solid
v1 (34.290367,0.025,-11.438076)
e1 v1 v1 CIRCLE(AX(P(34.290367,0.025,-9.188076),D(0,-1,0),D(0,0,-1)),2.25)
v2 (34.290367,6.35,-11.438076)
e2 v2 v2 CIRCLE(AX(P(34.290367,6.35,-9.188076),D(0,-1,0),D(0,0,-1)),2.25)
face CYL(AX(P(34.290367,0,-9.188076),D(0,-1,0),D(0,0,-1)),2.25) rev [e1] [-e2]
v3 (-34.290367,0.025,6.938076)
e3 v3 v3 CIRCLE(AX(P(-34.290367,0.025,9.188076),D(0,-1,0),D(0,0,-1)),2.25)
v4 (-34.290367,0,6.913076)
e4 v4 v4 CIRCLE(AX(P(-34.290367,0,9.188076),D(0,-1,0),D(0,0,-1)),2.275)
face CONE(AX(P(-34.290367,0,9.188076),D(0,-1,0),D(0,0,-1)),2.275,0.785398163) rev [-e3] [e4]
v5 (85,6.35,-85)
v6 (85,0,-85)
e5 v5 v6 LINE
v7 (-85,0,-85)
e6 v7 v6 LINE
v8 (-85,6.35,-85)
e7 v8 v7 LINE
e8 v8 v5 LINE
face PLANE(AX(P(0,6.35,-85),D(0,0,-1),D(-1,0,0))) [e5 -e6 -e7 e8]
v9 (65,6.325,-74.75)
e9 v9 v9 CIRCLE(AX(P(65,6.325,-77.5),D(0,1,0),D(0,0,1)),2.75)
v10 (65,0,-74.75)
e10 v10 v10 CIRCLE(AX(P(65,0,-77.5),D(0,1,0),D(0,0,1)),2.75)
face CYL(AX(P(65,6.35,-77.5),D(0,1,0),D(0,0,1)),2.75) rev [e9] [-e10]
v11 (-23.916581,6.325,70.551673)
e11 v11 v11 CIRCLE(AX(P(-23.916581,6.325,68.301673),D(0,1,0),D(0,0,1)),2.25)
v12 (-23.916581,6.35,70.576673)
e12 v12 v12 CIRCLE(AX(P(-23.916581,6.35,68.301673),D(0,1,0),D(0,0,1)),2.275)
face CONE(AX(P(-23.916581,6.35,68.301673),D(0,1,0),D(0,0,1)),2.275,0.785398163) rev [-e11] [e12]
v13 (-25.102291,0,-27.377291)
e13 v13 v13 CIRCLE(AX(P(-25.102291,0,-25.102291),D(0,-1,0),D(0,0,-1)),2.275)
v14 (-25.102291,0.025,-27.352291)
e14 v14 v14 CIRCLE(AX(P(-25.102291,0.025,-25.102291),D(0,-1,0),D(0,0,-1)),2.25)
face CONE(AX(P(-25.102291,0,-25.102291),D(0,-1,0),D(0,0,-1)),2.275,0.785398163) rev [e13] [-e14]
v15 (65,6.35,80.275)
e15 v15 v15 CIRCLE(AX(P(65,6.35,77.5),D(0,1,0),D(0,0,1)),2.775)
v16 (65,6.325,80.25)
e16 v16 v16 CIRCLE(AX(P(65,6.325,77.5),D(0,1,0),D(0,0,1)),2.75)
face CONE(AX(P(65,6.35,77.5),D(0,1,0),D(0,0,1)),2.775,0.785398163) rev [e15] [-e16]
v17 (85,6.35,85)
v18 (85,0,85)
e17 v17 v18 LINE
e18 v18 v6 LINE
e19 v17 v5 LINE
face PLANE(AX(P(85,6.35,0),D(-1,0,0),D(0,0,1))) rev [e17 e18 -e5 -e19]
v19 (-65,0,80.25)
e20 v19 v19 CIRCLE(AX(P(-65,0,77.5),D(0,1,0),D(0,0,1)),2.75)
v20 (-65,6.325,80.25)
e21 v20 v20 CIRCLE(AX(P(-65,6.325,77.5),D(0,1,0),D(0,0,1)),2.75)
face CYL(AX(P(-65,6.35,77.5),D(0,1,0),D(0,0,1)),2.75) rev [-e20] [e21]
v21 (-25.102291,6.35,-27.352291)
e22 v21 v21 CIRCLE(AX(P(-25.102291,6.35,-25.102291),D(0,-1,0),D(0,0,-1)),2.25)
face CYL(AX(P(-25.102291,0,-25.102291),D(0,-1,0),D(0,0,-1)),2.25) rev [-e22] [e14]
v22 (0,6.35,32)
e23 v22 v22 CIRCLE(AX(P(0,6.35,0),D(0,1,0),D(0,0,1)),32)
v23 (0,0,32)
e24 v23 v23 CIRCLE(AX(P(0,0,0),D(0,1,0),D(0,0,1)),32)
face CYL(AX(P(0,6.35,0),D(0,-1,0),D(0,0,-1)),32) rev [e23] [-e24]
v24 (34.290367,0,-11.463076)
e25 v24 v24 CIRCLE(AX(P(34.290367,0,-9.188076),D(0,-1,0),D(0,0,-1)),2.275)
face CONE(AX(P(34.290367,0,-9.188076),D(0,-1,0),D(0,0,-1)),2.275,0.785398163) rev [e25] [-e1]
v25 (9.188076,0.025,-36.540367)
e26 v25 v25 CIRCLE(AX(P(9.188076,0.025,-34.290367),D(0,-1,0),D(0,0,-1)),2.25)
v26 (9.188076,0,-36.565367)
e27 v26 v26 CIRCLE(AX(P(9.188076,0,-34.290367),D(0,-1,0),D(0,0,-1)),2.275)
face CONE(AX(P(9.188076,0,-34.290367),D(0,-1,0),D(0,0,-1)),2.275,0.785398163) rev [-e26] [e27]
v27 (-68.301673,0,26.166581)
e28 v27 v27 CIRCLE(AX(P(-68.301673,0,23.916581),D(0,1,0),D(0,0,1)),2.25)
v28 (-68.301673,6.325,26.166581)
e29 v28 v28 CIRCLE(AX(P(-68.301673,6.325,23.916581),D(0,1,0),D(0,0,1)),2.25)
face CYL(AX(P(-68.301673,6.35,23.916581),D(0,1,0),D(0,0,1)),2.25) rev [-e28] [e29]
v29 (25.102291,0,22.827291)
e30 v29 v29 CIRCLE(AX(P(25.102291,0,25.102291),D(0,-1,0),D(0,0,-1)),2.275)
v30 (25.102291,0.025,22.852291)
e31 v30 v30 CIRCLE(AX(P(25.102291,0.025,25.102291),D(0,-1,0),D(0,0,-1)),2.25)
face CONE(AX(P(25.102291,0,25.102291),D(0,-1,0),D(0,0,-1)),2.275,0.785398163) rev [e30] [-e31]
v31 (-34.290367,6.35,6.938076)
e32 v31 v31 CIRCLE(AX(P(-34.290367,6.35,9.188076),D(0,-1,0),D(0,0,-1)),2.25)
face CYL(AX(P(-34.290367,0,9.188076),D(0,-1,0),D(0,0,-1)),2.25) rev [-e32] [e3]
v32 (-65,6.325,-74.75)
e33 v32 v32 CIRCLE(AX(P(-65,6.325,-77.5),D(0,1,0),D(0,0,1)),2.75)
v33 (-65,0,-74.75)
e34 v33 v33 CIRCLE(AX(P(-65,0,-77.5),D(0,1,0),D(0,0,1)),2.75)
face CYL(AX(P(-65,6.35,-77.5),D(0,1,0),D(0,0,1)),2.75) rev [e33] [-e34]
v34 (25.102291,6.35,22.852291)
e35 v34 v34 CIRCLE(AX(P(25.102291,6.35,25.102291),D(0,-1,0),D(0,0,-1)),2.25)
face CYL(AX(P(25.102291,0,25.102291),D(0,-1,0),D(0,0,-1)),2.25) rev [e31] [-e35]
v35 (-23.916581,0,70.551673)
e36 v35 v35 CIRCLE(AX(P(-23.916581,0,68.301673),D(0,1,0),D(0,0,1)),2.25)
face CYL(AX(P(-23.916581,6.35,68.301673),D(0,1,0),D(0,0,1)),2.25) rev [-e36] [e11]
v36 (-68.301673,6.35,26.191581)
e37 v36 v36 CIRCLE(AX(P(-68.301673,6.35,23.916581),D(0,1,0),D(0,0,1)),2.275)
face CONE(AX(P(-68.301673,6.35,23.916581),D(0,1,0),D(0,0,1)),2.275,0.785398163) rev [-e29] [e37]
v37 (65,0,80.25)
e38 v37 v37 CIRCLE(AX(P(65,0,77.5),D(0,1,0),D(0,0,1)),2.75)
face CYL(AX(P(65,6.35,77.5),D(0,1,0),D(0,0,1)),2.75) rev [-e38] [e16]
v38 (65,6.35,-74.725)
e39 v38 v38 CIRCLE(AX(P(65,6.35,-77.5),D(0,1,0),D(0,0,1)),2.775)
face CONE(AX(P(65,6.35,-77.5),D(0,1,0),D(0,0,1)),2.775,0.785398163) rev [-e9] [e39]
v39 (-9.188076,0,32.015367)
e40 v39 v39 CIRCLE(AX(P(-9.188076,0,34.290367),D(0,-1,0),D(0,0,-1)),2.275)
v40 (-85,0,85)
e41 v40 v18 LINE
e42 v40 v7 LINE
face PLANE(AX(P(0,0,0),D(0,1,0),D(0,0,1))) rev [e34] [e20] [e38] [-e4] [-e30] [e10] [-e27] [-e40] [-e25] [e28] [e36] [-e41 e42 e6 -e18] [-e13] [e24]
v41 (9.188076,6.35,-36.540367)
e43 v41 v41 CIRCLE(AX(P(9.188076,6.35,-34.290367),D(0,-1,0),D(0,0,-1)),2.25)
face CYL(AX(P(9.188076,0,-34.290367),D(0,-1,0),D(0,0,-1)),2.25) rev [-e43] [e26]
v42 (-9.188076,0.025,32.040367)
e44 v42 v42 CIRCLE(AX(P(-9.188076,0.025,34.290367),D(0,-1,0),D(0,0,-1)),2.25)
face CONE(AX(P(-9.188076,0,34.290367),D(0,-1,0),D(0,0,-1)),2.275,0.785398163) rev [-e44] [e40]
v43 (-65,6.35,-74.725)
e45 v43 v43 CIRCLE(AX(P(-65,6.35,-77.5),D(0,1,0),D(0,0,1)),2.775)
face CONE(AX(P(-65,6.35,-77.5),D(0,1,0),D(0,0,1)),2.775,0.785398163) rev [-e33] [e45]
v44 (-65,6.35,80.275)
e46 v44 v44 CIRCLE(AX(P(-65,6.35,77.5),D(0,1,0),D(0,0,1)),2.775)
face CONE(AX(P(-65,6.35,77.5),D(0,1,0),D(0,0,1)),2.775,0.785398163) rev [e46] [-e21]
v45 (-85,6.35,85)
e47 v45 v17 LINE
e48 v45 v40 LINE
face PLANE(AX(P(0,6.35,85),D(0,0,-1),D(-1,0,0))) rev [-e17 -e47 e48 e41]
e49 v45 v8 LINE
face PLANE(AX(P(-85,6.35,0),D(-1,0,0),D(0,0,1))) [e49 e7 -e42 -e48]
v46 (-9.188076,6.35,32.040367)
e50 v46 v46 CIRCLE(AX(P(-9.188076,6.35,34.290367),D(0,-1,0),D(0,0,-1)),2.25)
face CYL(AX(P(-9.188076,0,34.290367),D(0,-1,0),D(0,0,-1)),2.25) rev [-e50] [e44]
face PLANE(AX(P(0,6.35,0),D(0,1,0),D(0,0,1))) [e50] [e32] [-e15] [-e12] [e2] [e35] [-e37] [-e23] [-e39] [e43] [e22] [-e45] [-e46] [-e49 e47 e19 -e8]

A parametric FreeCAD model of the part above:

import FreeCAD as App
import Part
import Sketcher
Q = App.Units.Quantity

doc = App.newDocument("Part")
body = doc.addObject("PartDesign::Body", "Body")

# Sketch on XZ plane
sketch1 = body.newObject("Sketcher::SketchObject", "Sketch")
sketch1.AttachmentSupport = (doc.getObject("XZ_Plane"), [""])
sketch1.MapMode = "FlatFace"
sketch1.addGeometry([
    Part.LineSegment(App.Vector(-85, -85, 0), App.Vector(-85, 85, 0)),  # 0
    Part.LineSegment(App.Vector(-85, 85, 0), App.Vector(85, 85, 0)),  # 1
    Part.LineSegment(App.Vector(85, 85, 0), App.Vector(85, -85, 0)),  # 2
    Part.LineSegment(App.Vector(85, -85, 0), App.Vector(-85, -85, 0)),  # 3
    Part.Circle(App.Vector(0, 0, 0), App.Vector(0, 0, 1), 32),  # 4
], False)
sketch1.addConstraint([
    Sketcher.Constraint("Coincident", 0, 2, 1, 1),
    Sketcher.Constraint("Coincident", 1, 2, 2, 1),
    Sketcher.Constraint("Coincident", 2, 2, 3, 1),
    Sketcher.Constraint("Coincident", 3, 2, 0, 1),
    Sketcher.Constraint("Vertical", 0),
    Sketcher.Constraint("Horizontal", 1),
    Sketcher.Constraint("Vertical", 2),
    Sketcher.Constraint("Horizontal", 3),
    Sketcher.Constraint("Coincident", 4, 3, -1, 1),
    Sketcher.Constraint("Symmetric", 0, 2, 2, 2, -1, 1),
    Sketcher.Constraint("Equal", 3, 0),
    Sketcher.Constraint("Diameter", 4, Q("64 mm")),
    Sketcher.Constraint("DistanceX", 1, 1, 1, 2, Q("170 mm")),
])
pad1 = body.newObject("PartDesign::Pad", "Pad")
pad1.Profile = sketch1
pad1.Length = 6.35
pad1.Reversed = True

# Sketch on XZ plane
sketch2 = body.newObject("Sketcher::SketchObject", "Sketch001")
sketch2.AttachmentSupport = (doc.getObject("XZ_Plane"), [""])
sketch2.MapMode = "FlatFace"
sketch2.addGeometry([
    Part.Circle(App.Vector(9.2, -34.3, 0), App.Vector(0, 0, 1), 2.2),  # 0
    Part.Circle(App.Vector(-25.1, -25.1, 0), App.Vector(0, 0, 1), 2.2),  # 1
    Part.Circle(App.Vector(-34.3, 9.2, 0), App.Vector(0, 0, 1), 2.2),  # 2
    Part.Circle(App.Vector(-9.2, 34.3, 0), App.Vector(0, 0, 1), 2.2),  # 3
    Part.Circle(App.Vector(25.1, 25.1, 0), App.Vector(0, 0, 1), 2.2),  # 4
    Part.Circle(App.Vector(34.3, -9.2, 0), App.Vector(0, 0, 1), 2.2),  # 5
], False)
sketch2.addConstraint([
    Sketcher.Constraint("Equal", 0, 1),
    Sketcher.Constraint("Equal", 1, 2),
    Sketcher.Constraint("Equal", 2, 3),
    Sketcher.Constraint("Equal", 3, 4),
    Sketcher.Constraint("Equal", 4, 5),
    Sketcher.Constraint("Symmetric", 0, 3, 3, 3, -1, 1),
    Sketcher.Constraint("Symmetric", 1, 3, 4, 3, -1, 1),
    Sketcher.Constraint("Symmetric", 2, 3, 5, 3, -1, 1),
    Sketcher.Constraint("Diameter", 0, Q("4.5 mm")),
    Sketcher.Constraint("DistanceX", 1, 3, -1, 1, Q("25.102291 mm")),
    Sketcher.Constraint("DistanceY", 1, 3, -1, 1, Q("25.102291 mm")),
    Sketcher.Constraint("DistanceX", 2, 3, 3, 3, Q("25.102291 mm")),
    Sketcher.Constraint("DistanceY", 2, 3, 3, 3, Q("25.102291 mm")),
    Sketcher.Constraint("DistanceX", -1, 1, 0, 3, Q("9.188076 mm")),
    Sketcher.Constraint("DistanceY", 0, 3, -1, 1, Q("34.290367 mm")),
])
doc.recompute()
hole = body.newObject("PartDesign::Hole", "Hole")
hole.Profile = sketch2
hole.ThreadType = "None"
hole.Diameter = 4.5
hole.DepthType = "ThroughAll"
hole.HoleCutType = "Countersink"
hole.HoleCutDiameter = 4.55
hole.HoleCutCountersinkAngle = 90

# Sketch on XZ plane
sketch3 = body.newObject("Sketcher::SketchObject", "Sketch002")
sketch3.AttachmentSupport = (doc.getObject("XZ_Plane"), [""])
sketch3.MapMode = "FlatFace"
sketch3.AttachmentOffset = App.Placement(App.Vector(0, 0, -6.35), App.Rotation())
sketch3.addGeometry([
    Part.Circle(App.Vector(-68.3, 23.9, 0), App.Vector(0, 0, 1), 2.2),
    Part.Circle(App.Vector(-23.9, 68.3, 0), App.Vector(0, 0, 1), 2.2),
], False)
sketch3.addConstraint([
    Sketcher.Constraint("Equal", 0, 1),
    Sketcher.Constraint("Diameter", 0, Q("4.5 mm")),
    Sketcher.Constraint("DistanceY", -1, 1, 0, 3, Q("23.916581 mm")),
    Sketcher.Constraint("DistanceX", 1, 3, -1, 1, Q("23.916581 mm")),
    Sketcher.Constraint("DistanceX", 0, 3, -1, 1, Q("68.301673 mm")),
    Sketcher.Constraint("DistanceY", -1, 1, 1, 3, Q("68.301673 mm")),
])
doc.recompute()
hole2 = body.newObject("PartDesign::Hole", "Hole001")
hole2.Profile = sketch3
hole2.ThreadType = "None"
hole2.Diameter = 4.5
hole2.DepthType = "ThroughAll"
hole2.HoleCutType = "Countersink"
hole2.HoleCutDiameter = 4.55
hole2.HoleCutCountersinkAngle = 90
hole2.Reversed = True

# Sketch on XZ plane
sketch4 = body.newObject("Sketcher::SketchObject", "Sketch003")
sketch4.AttachmentSupport = (doc.getObject("XZ_Plane"), [""])
sketch4.MapMode = "FlatFace"
sketch4.AttachmentOffset = App.Placement(App.Vector(0, 0, -6.35), App.Rotation())
sketch4.addGeometry(Part.Circle(App.Vector(-65, 77.5, 0), App.Vector(0, 0, 1), 2.8), False)
sketch4.addConstraint([
    Sketcher.Constraint("Diameter", 0, Q("5.5 mm")),
    Sketcher.Constraint("DistanceX", 0, 3, -1, 1, Q("65 mm")),
    Sketcher.Constraint("DistanceY", -1, 1, 0, 3, Q("77.5 mm")),
])
doc.recompute()
hole3 = body.newObject("PartDesign::Hole", "Hole002")
hole3.Profile = sketch4
hole3.ThreadType = "None"
hole3.Diameter = 5.5
hole3.DepthType = "ThroughAll"
hole3.HoleCutType = "Countersink"
hole3.HoleCutDiameter = 5.55
hole3.HoleCutCountersinkAngle = 90
hole3.Reversed = True

# Sketch on XZ plane
sketch5 = body.newObject("Sketcher::SketchObject", "Sketch004")
sketch5.AttachmentSupport = (doc.getObject("XZ_Plane"), [""])
sketch5.MapMode = "FlatFace"
sketch5.AttachmentOffset = App.Placement(App.Vector(0, 0, -6.35), App.Rotation())
sketch5.addGeometry([
    Part.Circle(App.Vector(-65, -77.5, 0), App.Vector(0, 0, 1), 2.8),
    Part.Circle(App.Vector(65, -77.5, 0), App.Vector(0, 0, 1), 2.8),
    Part.Circle(App.Vector(65, 77.5, 0), App.Vector(0, 0, 1), 2.8),
], False)
sketch5.addConstraint([
    Sketcher.Constraint("Equal", 0, 1),
    Sketcher.Constraint("Equal", 1, 2),
    Sketcher.Constraint("Symmetric", 0, 3, 2, 3, -1, 1),
    Sketcher.Constraint("Symmetric", 0, 3, 1, 3, -2),
    Sketcher.Constraint("Diameter", 0, Q("5.5 mm")),
    Sketcher.Constraint("DistanceX", 0, 3, -1, 1, Q("65 mm")),
    Sketcher.Constraint("DistanceY", 1, 3, 2, 3, Q("155 mm")),
])
doc.recompute()
hole4 = body.newObject("PartDesign::Hole", "Hole003")
hole4.Profile = sketch5
hole4.ThreadType = "None"
hole4.Diameter = 5.5
hole4.DepthType = "ThroughAll"
hole4.HoleCutType = "Countersink"
hole4.HoleCutDiameter = 5.55
hole4.HoleCutCountersinkAngle = 90
hole4.Reversed = True

doc.recompute()
